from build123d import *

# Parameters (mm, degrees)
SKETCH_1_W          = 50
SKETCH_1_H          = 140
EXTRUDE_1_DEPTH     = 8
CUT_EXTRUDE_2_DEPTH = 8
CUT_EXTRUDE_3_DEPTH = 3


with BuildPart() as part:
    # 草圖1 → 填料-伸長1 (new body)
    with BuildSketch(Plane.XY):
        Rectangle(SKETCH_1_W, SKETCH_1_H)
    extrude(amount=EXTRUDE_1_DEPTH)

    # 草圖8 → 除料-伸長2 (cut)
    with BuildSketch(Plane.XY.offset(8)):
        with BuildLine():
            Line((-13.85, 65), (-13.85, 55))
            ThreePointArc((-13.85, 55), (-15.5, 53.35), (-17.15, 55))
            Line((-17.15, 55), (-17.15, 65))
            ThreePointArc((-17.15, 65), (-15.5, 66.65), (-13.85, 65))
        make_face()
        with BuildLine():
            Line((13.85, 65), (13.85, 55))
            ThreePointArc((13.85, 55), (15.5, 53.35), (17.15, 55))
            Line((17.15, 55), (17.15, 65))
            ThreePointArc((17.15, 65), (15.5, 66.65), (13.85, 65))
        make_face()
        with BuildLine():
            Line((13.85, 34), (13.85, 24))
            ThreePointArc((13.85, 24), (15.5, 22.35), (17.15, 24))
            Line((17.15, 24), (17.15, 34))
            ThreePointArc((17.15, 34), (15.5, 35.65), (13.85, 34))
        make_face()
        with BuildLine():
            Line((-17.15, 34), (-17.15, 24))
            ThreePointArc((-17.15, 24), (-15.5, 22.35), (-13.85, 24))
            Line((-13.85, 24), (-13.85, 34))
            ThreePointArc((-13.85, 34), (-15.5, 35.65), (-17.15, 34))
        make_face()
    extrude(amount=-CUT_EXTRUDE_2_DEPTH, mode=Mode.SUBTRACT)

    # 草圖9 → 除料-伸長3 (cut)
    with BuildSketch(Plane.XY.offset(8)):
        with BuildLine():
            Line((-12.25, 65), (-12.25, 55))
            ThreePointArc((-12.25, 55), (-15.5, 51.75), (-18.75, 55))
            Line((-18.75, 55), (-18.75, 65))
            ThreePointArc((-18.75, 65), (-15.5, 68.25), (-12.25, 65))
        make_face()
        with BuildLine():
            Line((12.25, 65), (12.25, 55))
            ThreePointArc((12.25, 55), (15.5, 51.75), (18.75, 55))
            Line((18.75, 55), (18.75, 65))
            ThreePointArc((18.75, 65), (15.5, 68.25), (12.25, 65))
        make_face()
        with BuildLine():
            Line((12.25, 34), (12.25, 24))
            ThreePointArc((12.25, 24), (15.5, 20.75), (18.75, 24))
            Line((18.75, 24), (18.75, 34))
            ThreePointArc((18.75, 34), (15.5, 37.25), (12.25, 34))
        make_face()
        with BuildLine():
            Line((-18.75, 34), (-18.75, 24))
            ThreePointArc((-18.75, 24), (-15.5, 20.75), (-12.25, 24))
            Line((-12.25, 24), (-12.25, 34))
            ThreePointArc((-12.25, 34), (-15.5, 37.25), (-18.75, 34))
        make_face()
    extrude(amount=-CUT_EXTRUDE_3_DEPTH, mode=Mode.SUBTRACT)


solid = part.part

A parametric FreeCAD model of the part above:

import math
import FreeCAD as App
import Part
import Sketcher

V = App.Vector
Q = App.Units.Quantity


def add_polygon(sketch, points):
    """Adds a closed chain of lines whose ends are joined by coincident constraints."""
    first, n = sketch.GeometryCount, len(points)
    for a, b in zip(points, points[1:] + points[:1]):
        sketch.addGeometry(Part.LineSegment(App.Vector(*a, 0), App.Vector(*b, 0)), False)
    for i in range(n):
        sketch.addConstraint(Sketcher.Constraint("Coincident", first + i, 2, first + (i + 1) % n, 1))

doc = App.newDocument("Part")
body = doc.addObject("PartDesign::Body", "Body")

sketch1 = doc.addObject("Sketcher::SketchObject", "Sketch")
body.addObject(sketch1)
sketch1.AttachmentSupport = (doc.XY_Plane, [""])
sketch1.MapMode = "FlatFace"
add_polygon(sketch1, [(-25, 70), (-25, -70), (25, -70), (25, 70)])
sketch1.addConstraint([
    Sketcher.Constraint("Vertical", 0),
    Sketcher.Constraint("Horizontal", 1),
    Sketcher.Constraint("Vertical", 2),
    Sketcher.Constraint("Horizontal", 3),
    Sketcher.Constraint("Symmetric", 0, 2, 2, 2, -1, 1),
    Sketcher.Constraint("DistanceX", 1, 1, 1, 2, Q("50 mm")),
    Sketcher.Constraint("DistanceY", 0, 2, 0, 1, Q("140 mm")),
])
pad1 = doc.addObject("PartDesign::Pad", "Pad")
body.addObject(pad1)
pad1.Profile = sketch1
pad1.Length = 8

sketch2 = doc.addObject("Sketcher::SketchObject", "Sketch001")
body.addObject(sketch2)
sketch2.AttachmentSupport = (doc.XY_Plane, [""])
sketch2.MapMode = "FlatFace"
sketch2.AttachmentOffset = App.Placement(V(0, 0, 8), App.Rotation())
sketch2.addGeometry([
    Part.LineSegment(V(-13.8, 55, 0), V(-13.8, 65, 0)),
    Part.ArcOfCircle(Part.Circle(V(-15.5, 65, 0), V(0, 0, 1), 1.6), math.radians(0), math.radians(180)),
    Part.LineSegment(V(-17.1, 65, 0), V(-17.1, 55, 0)),
    Part.ArcOfCircle(Part.Circle(V(-15.5, 55, 0), V(0, 0, 1), 1.6), math.radians(180), math.radians(360)),
    Part.LineSegment(V(13.8, 65, 0), V(13.8, 55, 0)),
    Part.ArcOfCircle(Part.Circle(V(15.5, 55, 0), V(0, 0, 1), 1.6), math.radians(180), math.radians(360)),
    Part.LineSegment(V(17.1, 55, 0), V(17.1, 65, 0)),
    Part.ArcOfCircle(Part.Circle(V(15.5, 65, 0), V(0, 0, 1), 1.6), math.radians(0), math.radians(180)),
    Part.LineSegment(V(13.8, 34, 0), V(13.8, 24, 0)),
    Part.ArcOfCircle(Part.Circle(V(15.5, 24, 0), V(0, 0, 1), 1.6), math.radians(180), math.radians(360)),
    Part.LineSegment(V(17.1, 24, 0), V(17.1, 34, 0)),
    Part.ArcOfCircle(Part.Circle(V(15.5, 34, 0), V(0, 0, 1), 1.6), math.radians(0), math.radians(180)),
    Part.LineSegment(V(-17.1, 34, 0), V(-17.1, 24, 0)),
    Part.ArcOfCircle(Part.Circle(V(-15.5, 24, 0), V(0, 0, 1), 1.6), math.radians(180), math.radians(360)),
    Part.LineSegment(V(-13.8, 24, 0), V(-13.8, 34, 0)),
    Part.ArcOfCircle(Part.Circle(V(-15.5, 34, 0), V(0, 0, 1), 1.6), math.radians(0), math.radians(180)),
], False)
sketch2.addConstraint([
    Sketcher.Constraint("Tangent", 0, 2, 1, 1),
    Sketcher.Constraint("Tangent", 1, 2, 2, 1),
    Sketcher.Constraint("Tangent", 2, 2, 3, 1),
    Sketcher.Constraint("Tangent", 3, 2, 0, 1),
    Sketcher.Constraint("Tangent", 4, 2, 5, 1),
    Sketcher.Constraint("Tangent", 5, 2, 6, 1),
    Sketcher.Constraint("Tangent", 6, 2, 7, 1),
    Sketcher.Constraint("Tangent", 7, 2, 4, 1),
    Sketcher.Constraint("Tangent", 8, 2, 9, 1),
    Sketcher.Constraint("Tangent", 9, 2, 10, 1),
    Sketcher.Constraint("Tangent", 10, 2, 11, 1),
    Sketcher.Constraint("Tangent", 11, 2, 8, 1),
    Sketcher.Constraint("Tangent", 12, 2, 13, 1),
    Sketcher.Constraint("Tangent", 13, 2, 14, 1),
    Sketcher.Constraint("Tangent", 14, 2, 15, 1),
    Sketcher.Constraint("Tangent", 15, 2, 12, 1),
    Sketcher.Constraint("Vertical", 0),
    Sketcher.Constraint("Vertical", 2),
    Sketcher.Constraint("Vertical", 4),
    Sketcher.Constraint("Vertical", 6),
    Sketcher.Constraint("Vertical", 8),
    Sketcher.Constraint("Vertical", 10),
    Sketcher.Constraint("Vertical", 12),
    Sketcher.Constraint("Vertical", 14),
    Sketcher.Constraint("Equal", 3, 5),
    Sketcher.Constraint("Equal", 7, 9),
    Sketcher.Constraint("Equal", 11, 13),
    Sketcher.Constraint("Symmetric", 3, 3, 5, 3, -2),
    Sketcher.Constraint("Symmetric", 9, 3, 13, 3, -2),
    Sketcher.Constraint("Horizontal", 1, 3, 7, 3),
    Sketcher.Constraint("Horizontal", 11, 3, 15, 3),
    Sketcher.Constraint("Vertical", 7, 3, 9, 3),
    Sketcher.Constraint("Equal", 6, 8),
    Sketcher.Constraint("DistanceY", 0, 1, 0, 2, Q("10 mm")),
    Sketcher.Constraint("Radius", 1, Q("1.65 mm")),
    Sketcher.Constraint("DistanceY", -1, 1, 1, 3, Q("65 mm")),
    Sketcher.Constraint("DistanceY", -1, 1, 9, 3, Q("24 mm")),
    Sketcher.Constraint("DistanceX", 3, 3, 5, 3, Q("31 mm")),
])
pocket1 = doc.addObject("PartDesign::Pocket", "Pocket")
body.addObject(pocket1)
pocket1.Profile = sketch2
pocket1.Length = 8

sketch3 = doc.addObject("Sketcher::SketchObject", "Sketch002")
body.addObject(sketch3)
sketch3.AttachmentSupport = (doc.XY_Plane, [""])
sketch3.MapMode = "FlatFace"
sketch3.AttachmentOffset = App.Placement(V(0, 0, 8), App.Rotation())
sketch3.addGeometry([
    Part.LineSegment(V(-12.2, 55, 0), V(-12.2, 65, 0)),
    Part.ArcOfCircle(Part.Circle(V(-15.5, 65, 0), V(0, 0, 1), 3.2), math.radians(0), math.radians(180)),
    Part.LineSegment(V(-18.8, 65, 0), V(-18.8, 55, 0)),
    Part.ArcOfCircle(Part.Circle(V(-15.5, 55, 0), V(0, 0, 1), 3.2), math.radians(180), math.radians(360)),
    Part.LineSegment(V(12.2, 65, 0), V(12.2, 55, 0)),
    Part.ArcOfCircle(Part.Circle(V(15.5, 55, 0), V(0, 0, 1), 3.2), math.radians(180), math.radians(360)),
    Part.LineSegment(V(18.8, 55, 0), V(18.8, 65, 0)),
    Part.ArcOfCircle(Part.Circle(V(15.5, 65, 0), V(0, 0, 1), 3.2), math.radians(0), math.radians(180)),
    Part.LineSegment(V(12.2, 34, 0), V(12.2, 24, 0)),
    Part.ArcOfCircle(Part.Circle(V(15.5, 24, 0), V(0, 0, 1), 3.2), math.radians(180), math.radians(360)),
    Part.LineSegment(V(18.8, 24, 0), V(18.8, 34, 0)),
    Part.ArcOfCircle(Part.Circle(V(15.5, 34, 0), V(0, 0, 1), 3.2), math.radians(0), math.radians(180)),
    Part.LineSegment(V(-18.8, 34, 0), V(-18.8, 24, 0)),
    Part.ArcOfCircle(Part.Circle(V(-15.5, 24, 0), V(0, 0, 1), 3.2), math.radians(180), math.radians(360)),
    Part.LineSegment(V(-12.2, 24, 0), V(-12.2, 34, 0)),
    Part.ArcOfCircle(Part.Circle(V(-15.5, 34, 0), V(0, 0, 1), 3.2), math.radians(0), math.radians(180)),
], False)
sketch3.addConstraint([
    Sketcher.Constraint("Tangent", 0, 2, 1, 1),
    Sketcher.Constraint("Tangent", 1, 2, 2, 1),
    Sketcher.Constraint("Tangent", 2, 2, 3, 1),
    Sketcher.Constraint("Tangent", 3, 2, 0, 1),
    Sketcher.Constraint("Tangent", 4, 2, 5, 1),
    Sketcher.Constraint("Tangent", 5, 2, 6, 1),
    Sketcher.Constraint("Tangent", 6, 2, 7, 1),
    Sketcher.Constraint("Tangent", 7, 2, 4, 1),
    Sketcher.Constraint("Tangent", 8, 2, 9, 1),
    Sketcher.Constraint("Tangent", 9, 2, 10, 1),
    Sketcher.Constraint("Tangent", 10, 2, 11, 1),
    Sketcher.Constraint("Tangent", 11, 2, 8, 1),
    Sketcher.Constraint("Tangent", 12, 2, 13, 1),
    Sketcher.Constraint("Tangent", 13, 2, 14, 1),
    Sketcher.Constraint("Tangent", 14, 2, 15, 1),
    Sketcher.Constraint("Tangent", 15, 2, 12, 1),
    Sketcher.Constraint("Vertical", 0),
    Sketcher.Constraint("Vertical", 2),
    Sketcher.Constraint("Vertical", 4),
    Sketcher.Constraint("Vertical", 6),
    Sketcher.Constraint("Vertical", 8),
    Sketcher.Constraint("Vertical", 10),
    Sketcher.Constraint("Vertical", 12),
    Sketcher.Constraint("Vertical", 14),
    Sketcher.Constraint("Equal", 3, 5),
    Sketcher.Constraint("Equal", 7, 9),
    Sketcher.Constraint("Equal", 11, 13),
    Sketcher.Constraint("Symmetric", 3, 3, 5, 3, -2),
    Sketcher.Constraint("Symmetric", 9, 3, 13, 3, -2),
    Sketcher.Constraint("Horizontal", 1, 3, 7, 3),
    Sketcher.Constraint("Horizontal", 11, 3, 15, 3),
    Sketcher.Constraint("Vertical", 7, 3, 9, 3),
    Sketcher.Constraint("Equal", 6, 8),
    Sketcher.Constraint("DistanceY", 0, 1, 0, 2, Q("10 mm")),
    Sketcher.Constraint("Radius", 1, Q("3.25 mm")),
    Sketcher.Constraint("DistanceY", -1, 1, 1, 3, Q("65 mm")),
    Sketcher.Constraint("DistanceY", -1, 1, 9, 3, Q("24 mm")),
    Sketcher.Constraint("DistanceX", 3, 3, 5, 3, Q("31 mm")),
])
pocket2 = doc.addObject("PartDesign::Pocket", "Pocket001")
body.addObject(pocket2)
pocket2.Profile = sketch3
pocket2.Length = 3

doc.recompute()
